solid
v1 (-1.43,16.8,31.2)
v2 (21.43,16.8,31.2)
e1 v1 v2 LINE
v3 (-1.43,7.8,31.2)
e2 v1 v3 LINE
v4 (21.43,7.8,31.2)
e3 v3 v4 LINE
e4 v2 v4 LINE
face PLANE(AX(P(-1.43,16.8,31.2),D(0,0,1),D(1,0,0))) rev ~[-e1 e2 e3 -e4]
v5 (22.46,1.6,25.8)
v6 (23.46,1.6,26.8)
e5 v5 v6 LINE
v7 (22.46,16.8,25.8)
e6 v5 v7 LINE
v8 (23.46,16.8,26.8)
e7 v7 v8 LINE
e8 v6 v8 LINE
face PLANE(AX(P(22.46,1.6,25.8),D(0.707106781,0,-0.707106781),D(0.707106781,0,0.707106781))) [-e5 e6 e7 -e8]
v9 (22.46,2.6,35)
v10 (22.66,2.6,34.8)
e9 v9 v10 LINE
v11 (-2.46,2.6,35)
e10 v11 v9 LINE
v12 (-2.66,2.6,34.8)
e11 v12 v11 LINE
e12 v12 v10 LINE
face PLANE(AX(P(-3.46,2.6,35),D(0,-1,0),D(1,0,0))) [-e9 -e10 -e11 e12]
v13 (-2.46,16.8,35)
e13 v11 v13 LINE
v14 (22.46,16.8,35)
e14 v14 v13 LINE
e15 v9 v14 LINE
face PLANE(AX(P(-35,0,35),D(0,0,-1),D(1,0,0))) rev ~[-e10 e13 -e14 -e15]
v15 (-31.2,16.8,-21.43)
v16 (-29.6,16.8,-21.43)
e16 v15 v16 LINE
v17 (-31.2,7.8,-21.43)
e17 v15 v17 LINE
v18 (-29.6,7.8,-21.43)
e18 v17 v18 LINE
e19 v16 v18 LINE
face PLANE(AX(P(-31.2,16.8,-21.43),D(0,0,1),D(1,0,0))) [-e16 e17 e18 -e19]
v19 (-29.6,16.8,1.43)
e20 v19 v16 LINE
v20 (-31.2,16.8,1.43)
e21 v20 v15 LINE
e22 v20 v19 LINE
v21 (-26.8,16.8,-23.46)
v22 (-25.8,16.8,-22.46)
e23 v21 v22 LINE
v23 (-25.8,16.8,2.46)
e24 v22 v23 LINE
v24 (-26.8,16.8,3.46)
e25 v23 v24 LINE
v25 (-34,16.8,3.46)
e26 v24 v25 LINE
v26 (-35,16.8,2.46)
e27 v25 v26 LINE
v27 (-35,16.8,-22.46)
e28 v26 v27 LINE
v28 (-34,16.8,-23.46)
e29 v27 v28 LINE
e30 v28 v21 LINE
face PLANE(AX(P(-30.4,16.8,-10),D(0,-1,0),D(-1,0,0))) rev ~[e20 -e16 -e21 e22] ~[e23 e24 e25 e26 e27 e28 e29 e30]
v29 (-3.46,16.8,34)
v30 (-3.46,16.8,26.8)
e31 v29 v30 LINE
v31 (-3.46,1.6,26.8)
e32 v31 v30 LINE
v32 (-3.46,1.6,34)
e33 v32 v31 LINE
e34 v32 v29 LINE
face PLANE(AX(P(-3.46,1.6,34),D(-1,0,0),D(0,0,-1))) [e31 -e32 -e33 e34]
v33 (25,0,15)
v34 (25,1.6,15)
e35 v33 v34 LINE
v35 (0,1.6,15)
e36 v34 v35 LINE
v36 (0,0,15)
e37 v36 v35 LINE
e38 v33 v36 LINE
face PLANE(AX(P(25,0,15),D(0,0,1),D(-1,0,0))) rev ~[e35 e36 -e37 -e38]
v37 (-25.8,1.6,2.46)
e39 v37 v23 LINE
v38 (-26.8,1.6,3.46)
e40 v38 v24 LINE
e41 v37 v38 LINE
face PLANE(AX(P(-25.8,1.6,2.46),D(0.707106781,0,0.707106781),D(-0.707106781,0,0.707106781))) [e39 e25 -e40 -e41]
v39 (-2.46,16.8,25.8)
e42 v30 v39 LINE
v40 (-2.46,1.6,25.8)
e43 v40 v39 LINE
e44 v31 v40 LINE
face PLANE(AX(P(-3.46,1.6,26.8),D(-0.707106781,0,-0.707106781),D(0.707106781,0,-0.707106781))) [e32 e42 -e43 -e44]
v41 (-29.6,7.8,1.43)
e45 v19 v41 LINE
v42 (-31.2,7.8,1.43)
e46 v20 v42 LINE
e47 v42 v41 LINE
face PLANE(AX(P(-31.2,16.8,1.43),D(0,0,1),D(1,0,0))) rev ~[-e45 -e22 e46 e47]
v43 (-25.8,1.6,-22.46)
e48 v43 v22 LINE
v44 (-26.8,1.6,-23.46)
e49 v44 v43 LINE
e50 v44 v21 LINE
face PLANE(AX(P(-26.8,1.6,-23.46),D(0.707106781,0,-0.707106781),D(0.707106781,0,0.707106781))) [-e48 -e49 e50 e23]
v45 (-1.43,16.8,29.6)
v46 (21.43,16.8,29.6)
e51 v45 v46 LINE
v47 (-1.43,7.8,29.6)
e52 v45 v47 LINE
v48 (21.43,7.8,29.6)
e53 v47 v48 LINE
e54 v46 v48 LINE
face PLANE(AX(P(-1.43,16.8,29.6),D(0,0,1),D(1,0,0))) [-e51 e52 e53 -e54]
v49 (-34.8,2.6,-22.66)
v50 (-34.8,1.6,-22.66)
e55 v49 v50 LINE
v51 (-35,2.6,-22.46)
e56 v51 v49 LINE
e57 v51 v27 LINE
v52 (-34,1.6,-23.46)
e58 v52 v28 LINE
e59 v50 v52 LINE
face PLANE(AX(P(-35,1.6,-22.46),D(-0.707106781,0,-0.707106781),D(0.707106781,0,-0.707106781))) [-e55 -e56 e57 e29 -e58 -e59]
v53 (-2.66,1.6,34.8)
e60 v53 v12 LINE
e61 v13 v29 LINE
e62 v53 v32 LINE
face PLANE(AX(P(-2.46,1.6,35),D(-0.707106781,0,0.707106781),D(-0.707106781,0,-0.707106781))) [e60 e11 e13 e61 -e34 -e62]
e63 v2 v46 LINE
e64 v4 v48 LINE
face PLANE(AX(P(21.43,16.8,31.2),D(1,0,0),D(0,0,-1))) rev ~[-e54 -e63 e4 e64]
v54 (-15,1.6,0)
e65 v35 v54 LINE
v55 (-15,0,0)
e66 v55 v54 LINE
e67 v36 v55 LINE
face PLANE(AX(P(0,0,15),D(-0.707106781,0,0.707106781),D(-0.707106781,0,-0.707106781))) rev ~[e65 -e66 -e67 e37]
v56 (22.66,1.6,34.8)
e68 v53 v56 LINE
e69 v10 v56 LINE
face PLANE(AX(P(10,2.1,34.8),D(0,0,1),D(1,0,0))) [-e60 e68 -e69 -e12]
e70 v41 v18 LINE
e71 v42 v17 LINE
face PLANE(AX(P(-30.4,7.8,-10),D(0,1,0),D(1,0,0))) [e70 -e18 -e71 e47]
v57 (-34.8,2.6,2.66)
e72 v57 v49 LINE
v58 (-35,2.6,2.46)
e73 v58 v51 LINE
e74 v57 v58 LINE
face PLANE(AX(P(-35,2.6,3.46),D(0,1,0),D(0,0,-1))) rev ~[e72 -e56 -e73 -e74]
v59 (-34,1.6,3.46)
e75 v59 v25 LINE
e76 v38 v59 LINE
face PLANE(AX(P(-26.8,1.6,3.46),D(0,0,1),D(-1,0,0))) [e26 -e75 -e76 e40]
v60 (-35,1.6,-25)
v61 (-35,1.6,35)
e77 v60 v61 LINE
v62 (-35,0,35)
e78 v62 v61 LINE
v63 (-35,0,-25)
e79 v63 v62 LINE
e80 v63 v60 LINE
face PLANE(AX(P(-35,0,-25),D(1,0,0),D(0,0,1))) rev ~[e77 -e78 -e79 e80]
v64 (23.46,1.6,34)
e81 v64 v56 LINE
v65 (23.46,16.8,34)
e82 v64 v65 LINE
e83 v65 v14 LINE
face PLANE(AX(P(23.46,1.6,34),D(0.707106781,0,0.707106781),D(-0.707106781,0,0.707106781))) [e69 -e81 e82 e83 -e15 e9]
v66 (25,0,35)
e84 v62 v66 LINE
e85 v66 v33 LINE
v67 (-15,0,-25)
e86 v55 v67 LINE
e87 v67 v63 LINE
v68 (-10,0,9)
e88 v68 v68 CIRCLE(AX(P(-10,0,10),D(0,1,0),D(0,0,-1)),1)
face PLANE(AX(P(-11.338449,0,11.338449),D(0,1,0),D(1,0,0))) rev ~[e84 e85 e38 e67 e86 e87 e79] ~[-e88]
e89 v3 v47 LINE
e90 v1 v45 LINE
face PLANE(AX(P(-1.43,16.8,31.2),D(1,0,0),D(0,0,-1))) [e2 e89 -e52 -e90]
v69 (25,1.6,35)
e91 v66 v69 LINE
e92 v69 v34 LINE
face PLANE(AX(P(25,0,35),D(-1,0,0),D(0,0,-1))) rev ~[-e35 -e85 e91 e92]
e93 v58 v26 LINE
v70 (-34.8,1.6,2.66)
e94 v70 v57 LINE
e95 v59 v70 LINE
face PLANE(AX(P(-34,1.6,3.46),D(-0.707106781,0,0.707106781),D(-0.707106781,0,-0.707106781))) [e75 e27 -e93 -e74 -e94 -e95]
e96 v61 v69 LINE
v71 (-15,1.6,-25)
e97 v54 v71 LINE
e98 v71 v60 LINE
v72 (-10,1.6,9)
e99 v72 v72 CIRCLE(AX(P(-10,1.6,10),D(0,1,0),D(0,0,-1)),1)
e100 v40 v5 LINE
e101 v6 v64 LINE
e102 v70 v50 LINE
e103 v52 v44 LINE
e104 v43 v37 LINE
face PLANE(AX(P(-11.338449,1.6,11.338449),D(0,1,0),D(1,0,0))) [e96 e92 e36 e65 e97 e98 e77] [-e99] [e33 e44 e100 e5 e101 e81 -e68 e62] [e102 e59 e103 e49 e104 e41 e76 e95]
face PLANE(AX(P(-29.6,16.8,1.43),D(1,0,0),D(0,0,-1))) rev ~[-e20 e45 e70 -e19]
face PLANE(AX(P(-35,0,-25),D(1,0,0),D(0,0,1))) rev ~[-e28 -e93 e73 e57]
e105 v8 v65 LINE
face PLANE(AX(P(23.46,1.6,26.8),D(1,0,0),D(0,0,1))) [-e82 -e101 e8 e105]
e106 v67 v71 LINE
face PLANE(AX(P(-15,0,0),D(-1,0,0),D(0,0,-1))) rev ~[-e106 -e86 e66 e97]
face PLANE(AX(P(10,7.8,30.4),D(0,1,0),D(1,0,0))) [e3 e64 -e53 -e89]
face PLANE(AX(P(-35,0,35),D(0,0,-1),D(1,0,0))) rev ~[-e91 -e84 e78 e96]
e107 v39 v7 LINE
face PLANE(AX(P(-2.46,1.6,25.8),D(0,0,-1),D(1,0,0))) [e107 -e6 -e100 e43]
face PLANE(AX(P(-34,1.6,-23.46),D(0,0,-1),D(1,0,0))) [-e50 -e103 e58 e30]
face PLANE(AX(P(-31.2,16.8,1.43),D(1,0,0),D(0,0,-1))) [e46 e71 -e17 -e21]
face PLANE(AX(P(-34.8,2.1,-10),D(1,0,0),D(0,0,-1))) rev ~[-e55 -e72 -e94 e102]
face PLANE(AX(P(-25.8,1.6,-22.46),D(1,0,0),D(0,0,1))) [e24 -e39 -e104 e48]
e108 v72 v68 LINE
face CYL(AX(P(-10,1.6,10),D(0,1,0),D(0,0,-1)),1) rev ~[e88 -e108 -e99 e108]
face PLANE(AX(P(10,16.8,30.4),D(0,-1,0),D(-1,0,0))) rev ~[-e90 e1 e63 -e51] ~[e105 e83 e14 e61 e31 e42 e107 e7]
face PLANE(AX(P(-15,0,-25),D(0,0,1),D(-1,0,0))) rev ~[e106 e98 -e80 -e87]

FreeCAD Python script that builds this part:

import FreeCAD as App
import Part
import Sketcher
from FreeCAD import Vector
Q = App.Units.Quantity

doc = App.newDocument("Part")
body = doc.addObject("PartDesign::Body", "Body")

# Sketch on XZ plane
sketch1 = body.newObject("Sketcher::SketchObject", "Sketch")
sketch1.AttachmentSupport = (doc.getObject("XZ_Plane"), [""])
sketch1.MapMode = "FlatFace"
sketch1.addGeometry(Part.LineSegment(Vector(-15, 0, 0), Vector(-15, -25, 0)), False)
sketch1.addGeometry(Part.LineSegment(Vector(-15, -25, 0), Vector(-35, -25, 0)), False)
sketch1.addGeometry(Part.LineSegment(Vector(-35, -25, 0), Vector(-35, 35, 0)), False)
sketch1.addGeometry(Part.LineSegment(Vector(-35, 35, 0), Vector(25, 35, 0)), False)
sketch1.addGeometry(Part.LineSegment(Vector(25, 35, 0), Vector(25, 15, 0)), False)
sketch1.addGeometry(Part.LineSegment(Vector(25, 15, 0), Vector(0, 15, 0)), False)
sketch1.addGeometry(Part.LineSegment(Vector(0, 15, 0), Vector(-15, 0, 0)), False)
sketch1.addConstraint(Sketcher.Constraint("Coincident", 0, 2, 1, 1))
sketch1.addConstraint(Sketcher.Constraint("Coincident", 1, 2, 2, 1))
sketch1.addConstraint(Sketcher.Constraint("Coincident", 2, 2, 3, 1))
sketch1.addConstraint(Sketcher.Constraint("Coincident", 3, 2, 4, 1))
sketch1.addConstraint(Sketcher.Constraint("Coincident", 4, 2, 5, 1))
sketch1.addConstraint(Sketcher.Constraint("Coincident", 5, 2, 6, 1))
sketch1.addConstraint(Sketcher.Constraint("Coincident", 6, 2, 0, 1))
sketch1.addConstraint(Sketcher.Constraint("Vertical", 0))
sketch1.addConstraint(Sketcher.Constraint("Horizontal", 1))
sketch1.addConstraint(Sketcher.Constraint("Vertical", 2))
sketch1.addConstraint(Sketcher.Constraint("Horizontal", 3))
sketch1.addConstraint(Sketcher.Constraint("Vertical", 4))
sketch1.addConstraint(Sketcher.Constraint("Horizontal", 5))
sketch1.addConstraint(Sketcher.Constraint("PointOnObject", 5, 2, -2))
sketch1.addConstraint(Sketcher.Constraint("PointOnObject", 6, 2, -1))
sketch1.addConstraint(Sketcher.Constraint("Equal", 5, 0))
sketch1.addConstraint(Sketcher.Constraint("Equal", 3, 2))
sketch1.addConstraint(Sketcher.Constraint("Equal", 1, 4))
sketch1.addConstraint(Sketcher.Constraint("DistanceX", 1, 2, 1, 1, Q("20 mm")))
sketch1.addConstraint(Sketcher.Constraint("DistanceX", 3, 1, 3, 2, Q("60 mm")))
sketch1.addConstraint(Sketcher.Constraint("DistanceX", 5, 2, 5, 1, Q("25 mm")))
pad1 = body.newObject("PartDesign::Pad", "Pad")
pad1.Profile = sketch1
pad1.Length = 1.6
pad1.Reversed = True

# Sketch on XZ plane
sketch2 = body.newObject("Sketcher::SketchObject", "Sketch001")
sketch2.AttachmentSupport = (doc.getObject("XZ_Plane"), [""])
sketch2.MapMode = "FlatFace"
sketch2.AttachmentOffset = App.Placement(Vector(0, 0, -1.6), App.Rotation())
sketch2.addGeometry(Part.LineSegment(Vector(-35, 2.5, 0), Vector(-34, 3.5, 0)), False)
sketch2.addGeometry(Part.LineSegment(Vector(-34, 3.5, 0), Vector(-26.8, 3.5, 0)), False)
sketch2.addGeometry(Part.LineSegment(Vector(-26.8, 3.5, 0), Vector(-25.8, 2.5, 0)), False)
sketch2.addGeometry(Part.LineSegment(Vector(-25.8, 2.5, 0), Vector(-25.8, -22.5, 0)), False)
sketch2.addGeometry(Part.LineSegment(Vector(-25.8, -22.5, 0), Vector(-26.8, -23.5, 0)), False)
sketch2.addGeometry(Part.LineSegment(Vector(-26.8, -23.5, 0), Vector(-34, -23.5, 0)), False)
sketch2.addGeometry(Part.LineSegment(Vector(-34, -23.5, 0), Vector(-35, -22.5, 0)), False)
sketch2.addGeometry(Part.LineSegment(Vector(-35, -22.5, 0), Vector(-35, 2.5, 0)), False)
sketch2.addGeometry(Part.LineSegment(Vector(-2.5, 35, 0), Vector(22.5, 35, 0)), False)
sketch2.addGeometry(Part.LineSegment(Vector(22.5, 35, 0), Vector(23.5, 34, 0)), False)
sketch2.addGeometry(Part.LineSegment(Vector(23.5, 34, 0), Vector(23.5, 26.8, 0)), False)
sketch2.addGeometry(Part.LineSegment(Vector(23.5, 26.8, 0), Vector(22.5, 25.8, 0)), False)
sketch2.addGeometry(Part.LineSegment(Vector(22.5, 25.8, 0), Vector(-2.5, 25.8, 0)), False)
sketch2.addGeometry(Part.LineSegment(Vector(-2.5, 25.8, 0), Vector(-3.5, 26.8, 0)), False)
sketch2.addGeometry(Part.LineSegment(Vector(-3.5, 26.8, 0), Vector(-3.5, 34, 0)), False)
sketch2.addGeometry(Part.LineSegment(Vector(-3.5, 34, 0), Vector(-2.5, 35, 0)), False)
sketch2.addConstraint(Sketcher.Constraint("Coincident", 0, 2, 1, 1))
sketch2.addConstraint(Sketcher.Constraint("Coincident", 1, 2, 2, 1))
sketch2.addConstraint(Sketcher.Constraint("Coincident", 2, 2, 3, 1))
sketch2.addConstraint(Sketcher.Constraint("Coincident", 3, 2, 4, 1))
sketch2.addConstraint(Sketcher.Constraint("Coincident", 4, 2, 5, 1))
sketch2.addConstraint(Sketcher.Constraint("Coincident", 5, 2, 6, 1))
sketch2.addConstraint(Sketcher.Constraint("Coincident", 6, 2, 7, 1))
sketch2.addConstraint(Sketcher.Constraint("Coincident", 7, 2, 0, 1))
sketch2.addConstraint(Sketcher.Constraint("Coincident", 8, 2, 9, 1))
sketch2.addConstraint(Sketcher.Constraint("Coincident", 9, 2, 10, 1))
sketch2.addConstraint(Sketcher.Constraint("Coincident", 10, 2, 11, 1))
sketch2.addConstraint(Sketcher.Constraint("Coincident", 11, 2, 12, 1))
sketch2.addConstraint(Sketcher.Constraint("Coincident", 12, 2, 13, 1))
sketch2.addConstraint(Sketcher.Constraint("Coincident", 13, 2, 14, 1))
sketch2.addConstraint(Sketcher.Constraint("Coincident", 14, 2, 15, 1))
sketch2.addConstraint(Sketcher.Constraint("Coincident", 15, 2, 8, 1))
sketch2.addConstraint(Sketcher.Constraint("Horizontal", 1))
sketch2.addConstraint(Sketcher.Constraint("Vertical", 3))
sketch2.addConstraint(Sketcher.Constraint("Horizontal", 5))
sketch2.addConstraint(Sketcher.Constraint("Vertical", 7))
sketch2.addConstraint(Sketcher.Constraint("Horizontal", 8))
sketch2.addConstraint(Sketcher.Constraint("Vertical", 10))
sketch2.addConstraint(Sketcher.Constraint("Horizontal", 12))
sketch2.addConstraint(Sketcher.Constraint("Vertical", 14))
sketch2.addConstraint(Sketcher.Constraint("Perpendicular", 0, 2))
sketch2.addConstraint(Sketcher.Constraint("Perpendicular", 2, 4))
sketch2.addConstraint(Sketcher.Constraint("Perpendicular", 4, 6))
sketch2.addConstraint(Sketcher.Constraint("Parallel", 6, 9))
sketch2.addConstraint(Sketcher.Constraint("Perpendicular", 9, 11))
sketch2.addConstraint(Sketcher.Constraint("Perpendicular", 11, 13))
sketch2.addConstraint(Sketcher.Constraint("Perpendicular", 13, 15))
sketch2.addConstraint(Sketcher.Constraint("Horizontal", 3, 2, 6, 2))
sketch2.addConstraint(Sketcher.Constraint("Horizontal", 2, 2, 7, 2))
sketch2.addConstraint(Sketcher.Constraint("Horizontal", 10, 2, 13, 2))
sketch2.addConstraint(Sketcher.Constraint("Horizontal", 9, 2, 14, 2))
sketch2.addConstraint(Sketcher.Constraint("Vertical", 1, 2, 4, 2))
sketch2.addConstraint(Sketcher.Constraint("Vertical", 0, 2, 5, 2))
sketch2.addConstraint(Sketcher.Constraint("Vertical", 8, 2, 11, 2))
sketch2.addConstraint(Sketcher.Constraint("Equal", 12, 3))
sketch2.addConstraint(Sketcher.Constraint("Equal", 5, 10))
sketch2.addConstraint(Sketcher.Constraint("Equal", 6, 9))
sketch2.addConstraint(Sketcher.Constraint("DistanceX", 1, 1, 1, 2, Q("7.2 mm")))
sketch2.addConstraint(Sketcher.Constraint("DistanceX", 0, 2, -1, 1, Q("34 mm")))
sketch2.addConstraint(Sketcher.Constraint("DistanceX", 6, 2, -1, 1, Q("35 mm")))
sketch2.addConstraint(Sketcher.Constraint("DistanceY", -1, 1, 8, 2, Q("35 mm")))
sketch2.addConstraint(Sketcher.Constraint("DistanceX", 8, 1, 8, 2, Q("24.92 mm")))
sketch2.addConstraint(Sketcher.Constraint("DistanceY", -1, 1, 0, 2, Q("3.46 mm")))
sketch2.addConstraint(Sketcher.Constraint("DistanceX", -1, 1, 8, 2, Q("22.46 mm")))
pad2 = body.newObject("PartDesign::Pad", "Pad001")
pad2.Profile = sketch2
pad2.Length = 15.2
pad2.Reversed = True

# Sketch on XY plane
sketch3 = body.newObject("Sketcher::SketchObject", "Sketch002")
sketch3.AttachmentSupport = (doc.getObject("XY_Plane"), [""])
sketch3.MapMode = "FlatFace"
sketch3.AttachmentOffset = App.Placement(Vector(0, 0, 35), App.Rotation())
sketch3.addGeometry(Part.LineSegment(Vector(-3.5, 2.6, 0), Vector(-3.5, 1.6, 0)), False)
sketch3.addGeometry(Part.LineSegment(Vector(-3.5, 1.6, 0), Vector(23.5, 1.6, 0)), False)
sketch3.addGeometry(Part.LineSegment(Vector(23.5, 1.6, 0), Vector(23.5, 2.6, 0)), False)
sketch3.addGeometry(Part.LineSegment(Vector(23.5, 2.6, 0), Vector(-3.5, 2.6, 0)), False)
sketch3.addConstraint(Sketcher.Constraint("Coincident", 0, 2, 1, 1))
sketch3.addConstraint(Sketcher.Constraint("Coincident", 1, 2, 2, 1))
sketch3.addConstraint(Sketcher.Constraint("Coincident", 2, 2, 3, 1))
sketch3.addConstraint(Sketcher.Constraint("Coincident", 3, 2, 0, 1))
sketch3.addConstraint(Sketcher.Constraint("Vertical", 0))
sketch3.addConstraint(Sketcher.Constraint("Horizontal", 1))
sketch3.addConstraint(Sketcher.Constraint("Vertical", 2))
sketch3.addConstraint(Sketcher.Constraint("Horizontal", 3))
sketch3.addConstraint(Sketcher.Constraint("DistanceY", 0, 2, 0, 1, Q("1 mm")))
sketch3.addConstraint(Sketcher.Constraint("DistanceX", 1, 1, 1, 2, Q("26.92 mm")))
sketch3.addConstraint(Sketcher.Constraint("DistanceY", -1, 1, 0, 2, Q("1.6 mm")))
sketch3.addConstraint(Sketcher.Constraint("DistanceX", 0, 2, -1, 1, Q("3.46 mm")))
pocket1 = body.newObject("PartDesign::Pocket", "Pocket")
pocket1.Profile = sketch3
pocket1.Length = 0.2

# Sketch on YZ plane
sketch4 = body.newObject("Sketcher::SketchObject", "Sketch003")
sketch4.AttachmentSupport = (doc.getObject("YZ_Plane"), [""])
sketch4.MapMode = "FlatFace"
sketch4.AttachmentOffset = App.Placement(Vector(0, 0, -35), App.Rotation())
sketch4.addGeometry(Part.LineSegment(Vector(2.6, 3.5, 0), Vector(1.6, 3.5, 0)), False)
sketch4.addGeometry(Part.LineSegment(Vector(1.6, 3.5, 0), Vector(1.6, -23.5, 0)), False)
sketch4.addGeometry(Part.LineSegment(Vector(1.6, -23.5, 0), Vector(2.6, -23.5, 0)), False)
sketch4.addGeometry(Part.LineSegment(Vector(2.6, -23.5, 0), Vector(2.6, 3.5, 0)), False)
sketch4.addConstraint(Sketcher.Constraint("Coincident", 0, 2, 1, 1))
sketch4.addConstraint(Sketcher.Constraint("Coincident", 1, 2, 2, 1))
sketch4.addConstraint(Sketcher.Constraint("Coincident", 2, 2, 3, 1))
sketch4.addConstraint(Sketcher.Constraint("Coincident", 3, 2, 0, 1))
sketch4.addConstraint(Sketcher.Constraint("Horizontal", 0))
sketch4.addConstraint(Sketcher.Constraint("Vertical", 1))
sketch4.addConstraint(Sketcher.Constraint("Horizontal", 2))
sketch4.addConstraint(Sketcher.Constraint("Vertical", 3))
sketch4.addConstraint(Sketcher.Constraint("DistanceX", 0, 2, 0, 1, Q("1 mm")))
sketch4.addConstraint(Sketcher.Constraint("DistanceY", 1, 2, 1, 1, Q("26.92 mm")))
sketch4.addConstraint(Sketcher.Constraint("DistanceX", -1, 1, 0, 2, Q("1.6 mm")))
sketch4.addConstraint(Sketcher.Constraint("DistanceY", -1, 1, 0, 2, Q("3.46 mm")))
pocket2 = body.newObject("PartDesign::Pocket", "Pocket001")
pocket2.Profile = sketch4
pocket2.Length = 0.2
pocket2.Reversed = True

# Sketch on XZ plane
sketch5 = body.newObject("Sketcher::SketchObject", "Sketch004")
sketch5.AttachmentSupport = (doc.getObject("XZ_Plane"), [""])
sketch5.MapMode = "FlatFace"
sketch5.AttachmentOffset = App.Placement(Vector(0, 0, -16.8), App.Rotation())
sketch5.addGeometry(Part.LineSegment(Vector(-31.2, -21.4, 0), Vector(-31.2, 1.4, 0)), False)
sketch5.addGeometry(Part.LineSegment(Vector(-31.2, 1.4, 0), Vector(-29.6, 1.4, 0)), False)
sketch5.addGeometry(Part.LineSegment(Vector(-29.6, 1.4, 0), Vector(-29.6, -21.4, 0)), False)
sketch5.addGeometry(Part.LineSegment(Vector(-29.6, -21.4, 0), Vector(-31.2, -21.4, 0)), False)
sketch5.addGeometry(Part.LineSegment(Vector(-1.4, 29.6, 0), Vector(-1.4, 31.2, 0)), False)
sketch5.addGeometry(Part.LineSegment(Vector(-1.4, 31.2, 0), Vector(21.4, 31.2, 0)), False)
sketch5.addGeometry(Part.LineSegment(Vector(21.4, 31.2, 0), Vector(21.4, 29.6, 0)), False)
sketch5.addGeometry(Part.LineSegment(Vector(21.4, 29.6, 0), Vector(-1.4, 29.6, 0)), False)
sketch5.addConstraint(Sketcher.Constraint("Coincident", 0, 2, 1, 1))
sketch5.addConstraint(Sketcher.Constraint("Coincident", 1, 2, 2, 1))
sketch5.addConstraint(Sketcher.Constraint("Coincident", 2, 2, 3, 1))
sketch5.addConstraint(Sketcher.Constraint("Coincident", 3, 2, 0, 1))
sketch5.addConstraint(Sketcher.Constraint("Coincident", 4, 2, 5, 1))
sketch5.addConstraint(Sketcher.Constraint("Coincident", 5, 2, 6, 1))
sketch5.addConstraint(Sketcher.Constraint("Coincident", 6, 2, 7, 1))
sketch5.addConstraint(Sketcher.Constraint("Coincident", 7, 2, 4, 1))
sketch5.addConstraint(Sketcher.Constraint("Vertical", 0))
sketch5.addConstraint(Sketcher.Constraint("Horizontal", 1))
sketch5.addConstraint(Sketcher.Constraint("Vertical", 2))
sketch5.addConstraint(Sketcher.Constraint("Horizontal", 3))
sketch5.addConstraint(Sketcher.Constraint("Vertical", 4))
sketch5.addConstraint(Sketcher.Constraint("Horizontal", 5))
sketch5.addConstraint(Sketcher.Constraint("Vertical", 6))
sketch5.addConstraint(Sketcher.Constraint("Horizontal", 7))
sketch5.addConstraint(Sketcher.Constraint("Equal", 7, 0))
sketch5.addConstraint(Sketcher.Constraint("Equal", 3, 4))
sketch5.addConstraint(Sketcher.Constraint("DistanceX", 1, 1, 1, 2, Q("1.6 mm")))
sketch5.addConstraint(Sketcher.Constraint("DistanceX", 5, 1, 5, 2, Q("22.86 mm")))
sketch5.addConstraint(Sketcher.Constraint("DistanceX", 0, 2, -1, 1, Q("31.2 mm")))
sketch5.addConstraint(Sketcher.Constraint("DistanceY", -1, 1, 4, 2, Q("31.2 mm")))
sketch5.addConstraint(Sketcher.Constraint("DistanceY", -1, 1, 0, 2, Q("1.43 mm")))
sketch5.addConstraint(Sketcher.Constraint("DistanceX", 4, 2, -1, 1, Q("1.43 mm")))
pocket3 = body.newObject("PartDesign::Pocket", "Pocket002")
pocket3.Profile = sketch5
pocket3.Length = 9
pocket3.Reversed = True

# Sketch on XZ plane
sketch6 = body.newObject("Sketcher::SketchObject", "Sketch005")
sketch6.AttachmentSupport = (doc.getObject("XZ_Plane"), [""])
sketch6.MapMode = "FlatFace"
sketch6.AttachmentOffset = App.Placement(Vector(0, 0, -1.6), App.Rotation())
sketch6.addGeometry(Part.Circle(Vector(-10, 10, 0), Vector(0, 0, 1), 1), False)
sketch6.addConstraint(Sketcher.Constraint("Diameter", 0, Q("2 mm")))
sketch6.addConstraint(Sketcher.Constraint("DistanceX", 0, 3, -1, 1, Q("10 mm")))
sketch6.addConstraint(Sketcher.Constraint("DistanceY", -1, 1, 0, 3, Q("10 mm")))
pocket4 = body.newObject("PartDesign::Pocket", "Pocket003")
pocket4.Profile = sketch6
pocket4.Length = 1.6
pocket4.Reversed = True

doc.recompute()
